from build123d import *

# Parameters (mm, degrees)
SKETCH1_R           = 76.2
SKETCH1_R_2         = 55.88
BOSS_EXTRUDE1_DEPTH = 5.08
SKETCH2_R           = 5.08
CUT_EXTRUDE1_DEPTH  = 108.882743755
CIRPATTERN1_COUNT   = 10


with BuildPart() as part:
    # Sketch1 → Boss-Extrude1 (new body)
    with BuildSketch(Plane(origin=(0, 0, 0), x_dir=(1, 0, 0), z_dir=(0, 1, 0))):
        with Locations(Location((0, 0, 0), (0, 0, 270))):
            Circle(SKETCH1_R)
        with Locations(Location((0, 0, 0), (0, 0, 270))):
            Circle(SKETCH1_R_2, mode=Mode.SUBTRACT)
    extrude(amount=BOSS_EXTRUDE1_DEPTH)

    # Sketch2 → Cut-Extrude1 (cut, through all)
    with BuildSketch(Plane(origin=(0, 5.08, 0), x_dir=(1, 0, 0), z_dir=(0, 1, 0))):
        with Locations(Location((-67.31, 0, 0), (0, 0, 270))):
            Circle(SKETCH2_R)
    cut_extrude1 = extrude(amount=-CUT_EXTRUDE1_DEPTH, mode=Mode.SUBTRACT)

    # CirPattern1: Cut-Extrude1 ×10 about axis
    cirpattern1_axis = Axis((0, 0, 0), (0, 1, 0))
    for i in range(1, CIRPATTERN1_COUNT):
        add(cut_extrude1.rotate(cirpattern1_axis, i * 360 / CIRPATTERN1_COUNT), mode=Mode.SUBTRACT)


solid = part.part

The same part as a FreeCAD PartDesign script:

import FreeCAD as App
import Part
import Sketcher
from FreeCAD import Vector
Q = App.Units.Quantity

doc = App.newDocument("Part")
body = doc.addObject("PartDesign::Body", "Body")

sketch1 = body.newObject("Sketcher::SketchObject", "Sketch")
sketch1.AttachmentSupport = (doc.getObject("XZ_Plane"), [""])
sketch1.MapMode = "FlatFace"
sketch1.addGeometry([
    Part.Circle(Vector(0, 0, 0), Vector(0, 0, 1), 76),
    Part.Circle(Vector(0, 0, 0), Vector(0, 0, 1), 56),
], False)
sketch1.addConstraint([
    Sketcher.Constraint("Coincident", 0, 3, -1, 1),
    Sketcher.Constraint("Coincident", 1, 3, -1, 1),
    Sketcher.Constraint("Diameter", 0, Q("6 in")),
    Sketcher.Constraint("Diameter", 1, Q("4.4 in")),
])
pad1 = body.newObject("PartDesign::Pad", "Pad")
pad1.Profile = sketch1
pad1.Length = Q("0.2 in")
pad1.Reversed = True

sketch2 = body.newObject("Sketcher::SketchObject", "Sketch001")
sketch2.AttachmentSupport = (doc.getObject("XZ_Plane"), [""])
sketch2.MapMode = "FlatFace"
sketch2.AttachmentOffset = App.Placement(Vector(0, 0, -0.2 * 25.4), App.Rotation())
sketch2.addGeometry(Part.Circle(Vector(-67, 0, 0), Vector(0, 0, 1), 5), False)
sketch2.addConstraint([
    Sketcher.Constraint("PointOnObject", 0, 3, -1),
    Sketcher.Constraint("Diameter", 0, Q("0.4 in")),
    Sketcher.Constraint("DistanceX", 0, 3, -1, 1, Q("2.65 in")),
])
pocket1 = body.newObject("PartDesign::Pocket", "Pocket")
pocket1.Profile = sketch2
pocket1.Type = "ThroughAll"
pocket1.Reversed = True
doc.recompute()

polarpattern = body.newObject("PartDesign::PolarPattern", "PolarPattern")
polarpattern.Originals = [pocket1]
polarpattern.Axis = (doc.getObject("Y_Axis"), [""])
polarpattern.Angle = 360
polarpattern.Occurrences = 10
body.Tip = polarpattern

doc.recompute()
